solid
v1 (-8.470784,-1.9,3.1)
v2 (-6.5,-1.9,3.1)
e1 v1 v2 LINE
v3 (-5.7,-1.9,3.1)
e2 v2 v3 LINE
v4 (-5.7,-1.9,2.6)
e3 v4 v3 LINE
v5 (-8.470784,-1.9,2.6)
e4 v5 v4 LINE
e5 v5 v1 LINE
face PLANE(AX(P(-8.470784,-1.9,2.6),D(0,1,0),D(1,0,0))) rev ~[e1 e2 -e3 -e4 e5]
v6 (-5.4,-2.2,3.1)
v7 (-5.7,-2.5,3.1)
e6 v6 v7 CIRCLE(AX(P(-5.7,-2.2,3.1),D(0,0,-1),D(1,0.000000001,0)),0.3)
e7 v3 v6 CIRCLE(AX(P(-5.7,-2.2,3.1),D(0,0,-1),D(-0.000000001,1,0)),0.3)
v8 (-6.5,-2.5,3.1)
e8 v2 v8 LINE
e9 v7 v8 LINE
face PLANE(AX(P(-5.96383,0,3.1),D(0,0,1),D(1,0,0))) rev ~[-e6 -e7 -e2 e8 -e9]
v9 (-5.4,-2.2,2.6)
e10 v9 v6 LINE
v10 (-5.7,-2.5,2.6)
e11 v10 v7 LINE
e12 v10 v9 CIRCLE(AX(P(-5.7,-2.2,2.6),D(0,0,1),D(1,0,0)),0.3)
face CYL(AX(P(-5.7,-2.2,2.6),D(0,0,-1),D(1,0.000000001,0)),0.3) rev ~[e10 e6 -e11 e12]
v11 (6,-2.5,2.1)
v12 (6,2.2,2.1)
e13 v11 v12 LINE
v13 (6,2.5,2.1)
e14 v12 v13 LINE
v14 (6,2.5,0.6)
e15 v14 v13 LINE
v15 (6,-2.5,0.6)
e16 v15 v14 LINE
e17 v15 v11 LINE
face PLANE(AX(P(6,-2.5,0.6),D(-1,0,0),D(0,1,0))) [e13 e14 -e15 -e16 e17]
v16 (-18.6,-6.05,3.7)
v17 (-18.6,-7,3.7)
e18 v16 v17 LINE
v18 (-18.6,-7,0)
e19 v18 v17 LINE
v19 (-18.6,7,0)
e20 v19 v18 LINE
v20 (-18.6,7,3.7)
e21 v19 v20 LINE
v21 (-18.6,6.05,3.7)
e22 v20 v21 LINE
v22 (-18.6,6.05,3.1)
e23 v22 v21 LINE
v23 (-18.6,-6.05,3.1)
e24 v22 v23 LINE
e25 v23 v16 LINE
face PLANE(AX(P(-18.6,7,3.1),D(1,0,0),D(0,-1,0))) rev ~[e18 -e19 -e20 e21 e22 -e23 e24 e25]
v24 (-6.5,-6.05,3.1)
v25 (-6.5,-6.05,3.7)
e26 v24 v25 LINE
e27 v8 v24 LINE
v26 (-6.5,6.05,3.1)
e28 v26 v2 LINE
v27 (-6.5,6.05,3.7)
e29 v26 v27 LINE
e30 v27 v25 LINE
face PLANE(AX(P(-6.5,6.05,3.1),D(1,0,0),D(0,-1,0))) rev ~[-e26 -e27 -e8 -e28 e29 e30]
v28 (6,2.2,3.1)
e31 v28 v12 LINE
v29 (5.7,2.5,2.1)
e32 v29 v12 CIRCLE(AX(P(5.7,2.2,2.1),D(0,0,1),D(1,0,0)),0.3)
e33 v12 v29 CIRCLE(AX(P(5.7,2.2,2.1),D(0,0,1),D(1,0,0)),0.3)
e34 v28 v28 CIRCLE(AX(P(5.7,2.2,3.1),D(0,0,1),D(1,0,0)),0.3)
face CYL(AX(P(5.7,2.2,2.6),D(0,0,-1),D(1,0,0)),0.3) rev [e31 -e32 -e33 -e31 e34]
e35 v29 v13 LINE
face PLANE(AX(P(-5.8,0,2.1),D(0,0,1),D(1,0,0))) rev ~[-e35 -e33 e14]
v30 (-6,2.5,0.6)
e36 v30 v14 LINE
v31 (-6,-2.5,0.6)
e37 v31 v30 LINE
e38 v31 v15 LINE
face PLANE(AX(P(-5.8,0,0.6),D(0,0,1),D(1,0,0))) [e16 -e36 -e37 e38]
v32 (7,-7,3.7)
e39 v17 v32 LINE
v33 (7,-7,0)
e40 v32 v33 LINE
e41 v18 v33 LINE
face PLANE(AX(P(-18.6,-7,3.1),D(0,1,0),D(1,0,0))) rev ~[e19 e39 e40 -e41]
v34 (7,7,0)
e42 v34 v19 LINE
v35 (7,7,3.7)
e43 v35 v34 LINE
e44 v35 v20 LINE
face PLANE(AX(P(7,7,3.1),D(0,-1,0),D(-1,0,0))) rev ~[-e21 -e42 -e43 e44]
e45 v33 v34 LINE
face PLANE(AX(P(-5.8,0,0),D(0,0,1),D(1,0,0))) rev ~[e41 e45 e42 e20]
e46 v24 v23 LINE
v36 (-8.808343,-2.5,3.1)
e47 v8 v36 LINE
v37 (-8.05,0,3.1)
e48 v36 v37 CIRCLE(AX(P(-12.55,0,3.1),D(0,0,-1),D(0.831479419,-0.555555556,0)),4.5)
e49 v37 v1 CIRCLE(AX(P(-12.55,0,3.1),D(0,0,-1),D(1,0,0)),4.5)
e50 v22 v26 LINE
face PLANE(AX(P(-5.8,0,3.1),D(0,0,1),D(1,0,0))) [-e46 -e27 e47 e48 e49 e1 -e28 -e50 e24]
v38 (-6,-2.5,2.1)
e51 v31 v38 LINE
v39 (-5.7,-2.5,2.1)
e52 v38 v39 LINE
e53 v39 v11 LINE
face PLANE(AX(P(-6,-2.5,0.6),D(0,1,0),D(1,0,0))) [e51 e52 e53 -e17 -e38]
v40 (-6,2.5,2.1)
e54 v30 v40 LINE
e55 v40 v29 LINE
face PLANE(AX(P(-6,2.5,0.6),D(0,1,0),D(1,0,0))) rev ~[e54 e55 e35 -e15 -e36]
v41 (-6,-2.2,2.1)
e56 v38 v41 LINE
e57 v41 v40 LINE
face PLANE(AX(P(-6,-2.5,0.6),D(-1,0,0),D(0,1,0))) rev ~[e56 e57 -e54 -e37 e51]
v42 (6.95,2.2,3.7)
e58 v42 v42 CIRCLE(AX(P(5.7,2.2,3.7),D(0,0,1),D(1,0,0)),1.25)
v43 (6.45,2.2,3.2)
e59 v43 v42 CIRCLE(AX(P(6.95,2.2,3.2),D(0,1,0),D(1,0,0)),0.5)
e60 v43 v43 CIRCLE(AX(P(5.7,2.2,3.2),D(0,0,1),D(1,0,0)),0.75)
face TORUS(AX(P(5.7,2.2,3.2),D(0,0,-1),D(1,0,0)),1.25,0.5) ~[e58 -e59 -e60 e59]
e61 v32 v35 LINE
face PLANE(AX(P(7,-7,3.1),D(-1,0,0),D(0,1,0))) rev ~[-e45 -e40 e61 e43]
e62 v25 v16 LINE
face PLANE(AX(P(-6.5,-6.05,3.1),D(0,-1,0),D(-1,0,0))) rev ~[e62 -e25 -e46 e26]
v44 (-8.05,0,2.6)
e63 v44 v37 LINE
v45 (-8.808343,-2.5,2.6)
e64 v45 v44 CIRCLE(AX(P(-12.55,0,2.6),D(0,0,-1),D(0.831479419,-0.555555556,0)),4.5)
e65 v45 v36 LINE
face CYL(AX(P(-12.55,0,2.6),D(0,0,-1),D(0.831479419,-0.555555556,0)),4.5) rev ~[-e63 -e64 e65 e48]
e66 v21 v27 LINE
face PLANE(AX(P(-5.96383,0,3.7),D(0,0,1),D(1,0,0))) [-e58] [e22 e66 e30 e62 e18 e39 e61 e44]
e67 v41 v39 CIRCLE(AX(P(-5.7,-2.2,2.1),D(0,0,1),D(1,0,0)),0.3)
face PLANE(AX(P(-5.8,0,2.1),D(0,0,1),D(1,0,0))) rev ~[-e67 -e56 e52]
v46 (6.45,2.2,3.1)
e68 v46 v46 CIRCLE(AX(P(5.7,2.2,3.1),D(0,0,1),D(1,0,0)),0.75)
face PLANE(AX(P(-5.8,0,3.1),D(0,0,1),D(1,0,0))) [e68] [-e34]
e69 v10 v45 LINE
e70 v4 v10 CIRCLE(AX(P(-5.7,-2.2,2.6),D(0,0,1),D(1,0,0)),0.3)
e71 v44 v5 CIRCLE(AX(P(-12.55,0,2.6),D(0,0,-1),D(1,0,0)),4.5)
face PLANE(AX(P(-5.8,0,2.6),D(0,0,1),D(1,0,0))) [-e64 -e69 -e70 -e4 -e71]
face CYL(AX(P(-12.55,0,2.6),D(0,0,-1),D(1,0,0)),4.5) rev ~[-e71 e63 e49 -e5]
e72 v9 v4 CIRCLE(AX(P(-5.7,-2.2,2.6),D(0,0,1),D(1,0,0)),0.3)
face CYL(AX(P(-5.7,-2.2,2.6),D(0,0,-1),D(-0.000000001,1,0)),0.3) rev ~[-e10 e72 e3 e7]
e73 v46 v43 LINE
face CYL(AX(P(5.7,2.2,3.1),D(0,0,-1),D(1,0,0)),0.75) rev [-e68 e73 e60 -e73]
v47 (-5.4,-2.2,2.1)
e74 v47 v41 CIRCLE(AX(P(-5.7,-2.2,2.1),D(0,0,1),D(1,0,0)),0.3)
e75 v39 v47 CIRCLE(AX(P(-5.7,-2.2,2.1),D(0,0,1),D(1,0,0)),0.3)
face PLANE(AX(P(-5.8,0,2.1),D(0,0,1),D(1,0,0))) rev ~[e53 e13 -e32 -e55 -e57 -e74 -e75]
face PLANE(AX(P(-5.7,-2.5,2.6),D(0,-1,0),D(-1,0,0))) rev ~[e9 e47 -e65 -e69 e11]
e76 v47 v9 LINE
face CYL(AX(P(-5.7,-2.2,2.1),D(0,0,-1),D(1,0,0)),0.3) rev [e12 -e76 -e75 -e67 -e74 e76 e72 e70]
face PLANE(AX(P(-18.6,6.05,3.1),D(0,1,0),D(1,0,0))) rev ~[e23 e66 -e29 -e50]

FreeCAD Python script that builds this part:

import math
import FreeCAD as App
import Part
import Sketcher
from FreeCAD import Vector
Q = App.Units.Quantity


def edges_at(feature, points):
    """Names of the edges that pass closest to the given points."""
    edges = feature.Shape.Edges
    near = lambda p: min(range(len(edges)), key=lambda i: edges[i].distToShape(Part.Vertex(*p))[0])
    return sorted({f"Edge{near(p) + 1}" for p in points})

doc = App.newDocument("Part")
params = doc.addObject("Spreadsheet::Sheet", "Params")
for row, (alias, value) in enumerate([
    ("sketch1_height", "14 mm"),
    ("sketch1_width", "25.6 mm"),
    ("pad1_length", "0.6 mm"),
    ("sketch2_width", "12 mm"),
    ("sketch2_height", "14 mm"),
    ("sketch2_height2", "5 mm"),
    ("sketch2_width2", "25.6 mm"),
    ("pad2_length", "1.5 mm"),
    ("sketch3_diameter", "0.6 mm"),
    ("sketch3_height", "14 mm"),
    ("sketch3_width", "25.6 mm"),
    ("pad3_length", "0.5 mm"),
    ("sketch4_diameter", "0.6 mm"),
    ("sketch4_radius", "4.5 mm"),
    ("sketch4_height", "14 mm"),
    ("sketch4_width", "25.6 mm"),
    ("pad4_length", "0.5 mm"),
    ("sketch5_diameter", "1.5 mm"),
    ("sketch5_height", "14 mm"),
    ("sketch5_width", "25.6 mm"),
    ("sketch5_width2", "12.1 mm"),
    ("pad5_length", "0.6 mm"),
    ("fillet_radius", "0.5 mm"),
], start=1):
    params.set(f"A{row}", alias)
    params.set(f"B{row}", "=" + value)
    params.setAlias(f"B{row}", alias)

body = doc.addObject("PartDesign::Body", "Body")

# Sketch on XY plane
sketch1 = body.newObject("Sketcher::SketchObject", "Sketch")
sketch1.AttachmentSupport = (doc.getObject("XY_Plane"), [""])
sketch1.MapMode = "FlatFace"
sketch1.addGeometry([
    Part.LineSegment(Vector(7, 7, 0), Vector(-19, 7, 0)),
    Part.LineSegment(Vector(-19, 7, 0), Vector(-19, -7, 0)),
    Part.LineSegment(Vector(-19, -7, 0), Vector(7, -7, 0)),
    Part.LineSegment(Vector(7, -7, 0), Vector(7, 7, 0)),
], False)
sketch1.addConstraint([
    Sketcher.Constraint("Coincident", 0, 2, 1, 1),
    Sketcher.Constraint("Coincident", 1, 2, 2, 1),
    Sketcher.Constraint("Coincident", 2, 2, 3, 1),
    Sketcher.Constraint("Coincident", 3, 2, 0, 1),
    Sketcher.Constraint("Horizontal", 0),
    Sketcher.Constraint("Vertical", 1),
    Sketcher.Constraint("Horizontal", 2),
    Sketcher.Constraint("Vertical", 3),
    Sketcher.Constraint("DistanceY", 1, 2, 1, 1, Q("14 mm")),
    Sketcher.Constraint("DistanceX", 0, 2, 0, 1, Q("25.6 mm")),
    Sketcher.Constraint("DistanceY", -1, 1, 0, 2, Q("7 mm")),
    Sketcher.Constraint("DistanceX", -1, 1, 2, 2, Q("7 mm")),
])
sketch1.setExpression("Constraints[8]", "Params.sketch1_height")
sketch1.setExpression("Constraints[9]", "Params.sketch1_width")
pad1 = body.newObject("PartDesign::Pad", "Pad")
pad1.Profile = sketch1
pad1.setExpression("Length", "Params.pad1_length")

# Sketch on XY plane
sketch2 = body.newObject("Sketcher::SketchObject", "Sketch001")
sketch2.AttachmentSupport = (doc.getObject("XY_Plane"), [""])
sketch2.MapMode = "FlatFace"
sketch2.AttachmentOffset = App.Placement(Vector(0, 0, 0.6), App.Rotation())
sketch2.addGeometry([
    Part.LineSegment(Vector(7, 7, 0), Vector(-19, 7, 0)),  # 0
    Part.LineSegment(Vector(-19, 7, 0), Vector(-19, -7, 0)),  # 1
    Part.LineSegment(Vector(-19, -7, 0), Vector(7, -7, 0)),  # 2
    Part.LineSegment(Vector(7, -7, 0), Vector(7, 7, 0)),  # 3
    Part.LineSegment(Vector(6, -2, 0), Vector(-6, -2, 0)),  # 4
    Part.LineSegment(Vector(-6, -2, 0), Vector(-6, 2, 0)),  # 5
    Part.LineSegment(Vector(-6, 2, 0), Vector(6, 2, 0)),  # 6
    Part.LineSegment(Vector(6, 2, 0), Vector(6, -2, 0)),  # 7
], False)
sketch2.addConstraint([
    Sketcher.Constraint("Coincident", 0, 2, 1, 1),
    Sketcher.Constraint("Coincident", 1, 2, 2, 1),
    Sketcher.Constraint("Coincident", 2, 2, 3, 1),
    Sketcher.Constraint("Coincident", 3, 2, 0, 1),
    Sketcher.Constraint("Coincident", 4, 2, 5, 1),
    Sketcher.Constraint("Coincident", 5, 2, 6, 1),
    Sketcher.Constraint("Coincident", 6, 2, 7, 1),
    Sketcher.Constraint("Coincident", 7, 2, 4, 1),
    Sketcher.Constraint("Horizontal", 0),
    Sketcher.Constraint("Vertical", 1),
    Sketcher.Constraint("Horizontal", 2),
    Sketcher.Constraint("Vertical", 3),
    Sketcher.Constraint("Horizontal", 4),
    Sketcher.Constraint("Vertical", 5),
    Sketcher.Constraint("Horizontal", 6),
    Sketcher.Constraint("Vertical", 7),
    Sketcher.Constraint("Symmetric", 4, 2, 6, 2, -1, 1),
    Sketcher.Constraint("DistanceX", 4, 2, 4, 1, Q("12 mm")),
    Sketcher.Constraint("DistanceY", 1, 2, 1, 1, Q("14 mm")),
    Sketcher.Constraint("DistanceY", 5, 1, 5, 2, Q("5 mm")),
    Sketcher.Constraint("DistanceX", 0, 2, 0, 1, Q("25.6 mm")),
    Sketcher.Constraint("DistanceY", -1, 1, 0, 2, Q("7 mm")),
    Sketcher.Constraint("DistanceX", -1, 1, 2, 2, Q("7 mm")),
])
sketch2.setExpression("Constraints[17]", "Params.sketch2_width")
sketch2.setExpression("Constraints[18]", "Params.sketch2_height")
sketch2.setExpression("Constraints[19]", "Params.sketch2_height2")
sketch2.setExpression("Constraints[20]", "Params.sketch2_width2")
pad2 = body.newObject("PartDesign::Pad", "Pad001")
pad2.Profile = sketch2
pad2.setExpression("Length", "Params.pad2_length")

# Sketch on XY plane
sketch3 = body.newObject("Sketcher::SketchObject", "Sketch002")
sketch3.AttachmentSupport = (doc.getObject("XY_Plane"), [""])
sketch3.MapMode = "FlatFace"
sketch3.AttachmentOffset = App.Placement(Vector(0, 0, 2.1), App.Rotation())
sketch3.addGeometry([
    Part.LineSegment(Vector(7, 7, 0), Vector(-18.6, 7, 0)),  # 0
    Part.LineSegment(Vector(-18.6, 7, 0), Vector(-18.6, -7, 0)),  # 1
    Part.LineSegment(Vector(-18.6, -7, 0), Vector(7, -7, 0)),  # 2
    Part.LineSegment(Vector(7, -7, 0), Vector(7, 7, 0)),  # 3
    Part.Circle(Vector(-5.7, -2.2, 0), Vector(0, 0, 1), 0.3),  # 4
    Part.Circle(Vector(5.7, 2.2, 0), Vector(0, 0, 1), 0.3),  # 5
], False)
sketch3.addConstraint([
    Sketcher.Constraint("Coincident", 0, 2, 1, 1),
    Sketcher.Constraint("Coincident", 1, 2, 2, 1),
    Sketcher.Constraint("Coincident", 2, 2, 3, 1),
    Sketcher.Constraint("Coincident", 3, 2, 0, 1),
    Sketcher.Constraint("Horizontal", 0),
    Sketcher.Constraint("Vertical", 1),
    Sketcher.Constraint("Horizontal", 2),
    Sketcher.Constraint("Vertical", 3),
    Sketcher.Constraint("Equal", 4, 5),
    Sketcher.Constraint("Symmetric", 4, 3, 5, 3, -1, 1),
    Sketcher.Constraint("Diameter", 4, Q("0.6 mm")),
    Sketcher.Constraint("DistanceY", 1, 2, 1, 1, Q("14 mm")),
    Sketcher.Constraint("DistanceX", 0, 2, 0, 1, Q("25.6 mm")),
    Sketcher.Constraint("DistanceY", -1, 1, 0, 2, Q("7 mm")),
    Sketcher.Constraint("DistanceX", -1, 1, 2, 2, Q("7 mm")),
    Sketcher.Constraint("DistanceX", 4, 3, -1, 1, Q("5.7 mm")),
    Sketcher.Constraint("DistanceY", 4, 3, -1, 1, Q("2.2 mm")),
])
sketch3.setExpression("Constraints[10]", "Params.sketch3_diameter")
sketch3.setExpression("Constraints[11]", "Params.sketch3_height")
sketch3.setExpression("Constraints[12]", "Params.sketch3_width")
pad3 = body.newObject("PartDesign::Pad", "Pad002")
pad3.Profile = sketch3
pad3.setExpression("Length", "Params.pad3_length")

# Sketch on XY plane
sketch4 = body.newObject("Sketcher::SketchObject", "Sketch003")
sketch4.AttachmentSupport = (doc.getObject("XY_Plane"), [""])
sketch4.MapMode = "FlatFace"
sketch4.AttachmentOffset = App.Placement(Vector(0, 0, 2.6), App.Rotation())
sketch4.addGeometry([
    Part.LineSegment(Vector(7, 7, 0), Vector(-18.6, 7, 0)),  # 0
    Part.LineSegment(Vector(-18.6, 7, 0), Vector(-18.6, -7, 0)),  # 1
    Part.LineSegment(Vector(-18.6, -7, 0), Vector(7, -7, 0)),  # 2
    Part.LineSegment(Vector(7, -7, 0), Vector(7, 7, 0)),  # 3
    Part.LineSegment(Vector(-8.47, -1.9, 0), Vector(-5.7, -1.9, 0)),  # 4
    Part.ArcOfCircle(Part.Circle(Vector(-5.7, -2.2, 0), Vector(0, 0, 1), 0.3), math.radians(0), math.radians(90)),  # 5
    Part.ArcOfCircle(Part.Circle(Vector(-5.7, -2.2, 0), Vector(0, 0, 1), 0.3), math.radians(-90), math.radians(0)),  # 6
    Part.LineSegment(Vector(-5.7, -2.5, 0), Vector(-8.81, -2.5, 0)),  # 7
    Part.ArcOfCircle(Part.Circle(Vector(-12.55, 0, 0), Vector(0, 0, 1), 4.5), math.radians(0), math.radians(326)),  # 8
    Part.ArcOfCircle(Part.Circle(Vector(-12.55, 0, 0), Vector(0, 0, 1), 4.5), math.radians(-25), math.radians(0)),  # 9
    Part.Circle(Vector(5.7, 2.2, 0), Vector(0, 0, 1), 0.3),  # 10
], False)
sketch4.addConstraint([
    Sketcher.Constraint("Coincident", 0, 2, 1, 1),
    Sketcher.Constraint("Coincident", 1, 2, 2, 1),
    Sketcher.Constraint("Coincident", 2, 2, 3, 1),
    Sketcher.Constraint("Coincident", 3, 2, 0, 1),
    Sketcher.Constraint("Tangent", 4, 2, 5, 2),
    Sketcher.Constraint("Tangent", 5, 1, 6, 2),
    Sketcher.Constraint("Tangent", 6, 1, 7, 1),
    Sketcher.Constraint("Coincident", 7, 2, 8, 2),
    Sketcher.Constraint("Tangent", 8, 1, 9, 2),
    Sketcher.Constraint("Coincident", 9, 1, 4, 1),
    Sketcher.Constraint("Horizontal", 0),
    Sketcher.Constraint("Vertical", 1),
    Sketcher.Constraint("Horizontal", 2),
    Sketcher.Constraint("Vertical", 3),
    Sketcher.Constraint("Horizontal", 4),
    Sketcher.Constraint("Horizontal", 7),
    Sketcher.Constraint("Equal", 5, 6),
    Sketcher.Constraint("Equal", 8, 9),
    Sketcher.Constraint("Equal", 6, 10),
    Sketcher.Constraint("Symmetric", 5, 3, 10, 3, -1, 1),
    Sketcher.Constraint("PointOnObject", 8, 3, -1),
    Sketcher.Constraint("PointOnObject", 8, 1, -1),
    Sketcher.Constraint("Horizontal", 6, 3, 5, 1),
    Sketcher.Constraint("Diameter", 10, Q("0.6 mm")),
    Sketcher.Constraint("Radius", 8, Q("4.5 mm")),
    Sketcher.Constraint("DistanceY", 1, 2, 1, 1, Q("14 mm")),
    Sketcher.Constraint("DistanceX", 0, 2, 0, 1, Q("25.6 mm")),
    Sketcher.Constraint("DistanceY", -1, 1, 0, 2, Q("7 mm")),
    Sketcher.Constraint("DistanceX", -1, 1, 2, 2, Q("7 mm")),
    Sketcher.Constraint("DistanceX", 5, 3, -1, 1, Q("5.7 mm")),
    Sketcher.Constraint("DistanceY", 5, 3, -1, 1, Q("2.2 mm")),
    Sketcher.Constraint("DistanceX", 8, 3, -1, 1, Q("12.55 mm")),
])
sketch4.setExpression("Constraints[23]", "Params.sketch4_diameter")
sketch4.setExpression("Constraints[24]", "Params.sketch4_radius")
sketch4.setExpression("Constraints[25]", "Params.sketch4_height")
sketch4.setExpression("Constraints[26]", "Params.sketch4_width")
pad4 = body.newObject("PartDesign::Pad", "Pad003")
pad4.Profile = sketch4
pad4.setExpression("Length", "Params.pad4_length")

# Sketch on XY plane
sketch5 = body.newObject("Sketcher::SketchObject", "Sketch004")
sketch5.AttachmentSupport = (doc.getObject("XY_Plane"), [""])
sketch5.MapMode = "FlatFace"
sketch5.AttachmentOffset = App.Placement(Vector(0, 0, 3.1), App.Rotation())
sketch5.addGeometry([
    Part.LineSegment(Vector(7, 7, 0), Vector(-18.6, 7, 0)),  # 0
    Part.LineSegment(Vector(-18.6, 7, 0), Vector(-18.6, 6, 0)),  # 1
    Part.LineSegment(Vector(-18.6, 6, 0), Vector(-6.5, 6, 0)),  # 2
    Part.LineSegment(Vector(-6.5, 6, 0), Vector(-6.5, -6, 0)),  # 3
    Part.LineSegment(Vector(-6.5, -6, 0), Vector(-18.6, -6, 0)),  # 4
    Part.LineSegment(Vector(-18.6, -6, 0), Vector(-18.6, -7, 0)),  # 5
    Part.LineSegment(Vector(-18.6, -7, 0), Vector(7, -7, 0)),  # 6
    Part.LineSegment(Vector(7, -7, 0), Vector(7, 7, 0)),  # 7
    Part.Circle(Vector(5.7, 2.2, 0), Vector(0, 0, 1), 0.8),  # 8
], False)
sketch5.addConstraint([
    Sketcher.Constraint("Coincident", 0, 2, 1, 1),
    Sketcher.Constraint("Coincident", 1, 2, 2, 1),
    Sketcher.Constraint("Coincident", 2, 2, 3, 1),
    Sketcher.Constraint("Coincident", 3, 2, 4, 1),
    Sketcher.Constraint("Coincident", 4, 2, 5, 1),
    Sketcher.Constraint("Coincident", 5, 2, 6, 1),
    Sketcher.Constraint("Coincident", 6, 2, 7, 1),
    Sketcher.Constraint("Coincident", 7, 2, 0, 1),
    Sketcher.Constraint("Horizontal", 0),
    Sketcher.Constraint("Vertical", 1),
    Sketcher.Constraint("Horizontal", 2),
    Sketcher.Constraint("Vertical", 3),
    Sketcher.Constraint("Horizontal", 4),
    Sketcher.Constraint("Vertical", 5),
    Sketcher.Constraint("Horizontal", 6),
    Sketcher.Constraint("Vertical", 7),
    Sketcher.Constraint("Symmetric", 1, 2, 4, 2, -1),
    Sketcher.Constraint("Equal", 4, 3),
    Sketcher.Constraint("Equal", 1, 5),
    Sketcher.Constraint("Diameter", 8, Q("1.5 mm")),
    Sketcher.Constraint("DistanceY", 7, 1, 7, 2, Q("14 mm")),
    Sketcher.Constraint("DistanceX", 0, 2, 0, 1, Q("25.6 mm")),
    Sketcher.Constraint("DistanceX", 2, 1, 2, 2, Q("12.1 mm")),
    Sketcher.Constraint("DistanceX", -1, 1, 6, 2, Q("7 mm")),
    Sketcher.Constraint("DistanceX", -1, 1, 8, 3, Q("5.7 mm")),
    Sketcher.Constraint("DistanceY", -1, 1, 8, 3, Q("2.2 mm")),
])
sketch5.setExpression("Constraints[19]", "Params.sketch5_diameter")
sketch5.setExpression("Constraints[20]", "Params.sketch5_height")
sketch5.setExpression("Constraints[21]", "Params.sketch5_width")
sketch5.setExpression("Constraints[22]", "Params.sketch5_width2")
pad5 = body.newObject("PartDesign::Pad", "Pad004")
pad5.Profile = sketch5
pad5.setExpression("Length", "Params.pad5_length")
doc.recompute()

fillet = body.newObject("PartDesign::Fillet", "Fillet")
fillet.Base = (pad5, edges_at(pad5, [(4.95, 2.2, 3.7)]))
fillet.setExpression("Radius", "Params.fillet_radius")

doc.recompute()
